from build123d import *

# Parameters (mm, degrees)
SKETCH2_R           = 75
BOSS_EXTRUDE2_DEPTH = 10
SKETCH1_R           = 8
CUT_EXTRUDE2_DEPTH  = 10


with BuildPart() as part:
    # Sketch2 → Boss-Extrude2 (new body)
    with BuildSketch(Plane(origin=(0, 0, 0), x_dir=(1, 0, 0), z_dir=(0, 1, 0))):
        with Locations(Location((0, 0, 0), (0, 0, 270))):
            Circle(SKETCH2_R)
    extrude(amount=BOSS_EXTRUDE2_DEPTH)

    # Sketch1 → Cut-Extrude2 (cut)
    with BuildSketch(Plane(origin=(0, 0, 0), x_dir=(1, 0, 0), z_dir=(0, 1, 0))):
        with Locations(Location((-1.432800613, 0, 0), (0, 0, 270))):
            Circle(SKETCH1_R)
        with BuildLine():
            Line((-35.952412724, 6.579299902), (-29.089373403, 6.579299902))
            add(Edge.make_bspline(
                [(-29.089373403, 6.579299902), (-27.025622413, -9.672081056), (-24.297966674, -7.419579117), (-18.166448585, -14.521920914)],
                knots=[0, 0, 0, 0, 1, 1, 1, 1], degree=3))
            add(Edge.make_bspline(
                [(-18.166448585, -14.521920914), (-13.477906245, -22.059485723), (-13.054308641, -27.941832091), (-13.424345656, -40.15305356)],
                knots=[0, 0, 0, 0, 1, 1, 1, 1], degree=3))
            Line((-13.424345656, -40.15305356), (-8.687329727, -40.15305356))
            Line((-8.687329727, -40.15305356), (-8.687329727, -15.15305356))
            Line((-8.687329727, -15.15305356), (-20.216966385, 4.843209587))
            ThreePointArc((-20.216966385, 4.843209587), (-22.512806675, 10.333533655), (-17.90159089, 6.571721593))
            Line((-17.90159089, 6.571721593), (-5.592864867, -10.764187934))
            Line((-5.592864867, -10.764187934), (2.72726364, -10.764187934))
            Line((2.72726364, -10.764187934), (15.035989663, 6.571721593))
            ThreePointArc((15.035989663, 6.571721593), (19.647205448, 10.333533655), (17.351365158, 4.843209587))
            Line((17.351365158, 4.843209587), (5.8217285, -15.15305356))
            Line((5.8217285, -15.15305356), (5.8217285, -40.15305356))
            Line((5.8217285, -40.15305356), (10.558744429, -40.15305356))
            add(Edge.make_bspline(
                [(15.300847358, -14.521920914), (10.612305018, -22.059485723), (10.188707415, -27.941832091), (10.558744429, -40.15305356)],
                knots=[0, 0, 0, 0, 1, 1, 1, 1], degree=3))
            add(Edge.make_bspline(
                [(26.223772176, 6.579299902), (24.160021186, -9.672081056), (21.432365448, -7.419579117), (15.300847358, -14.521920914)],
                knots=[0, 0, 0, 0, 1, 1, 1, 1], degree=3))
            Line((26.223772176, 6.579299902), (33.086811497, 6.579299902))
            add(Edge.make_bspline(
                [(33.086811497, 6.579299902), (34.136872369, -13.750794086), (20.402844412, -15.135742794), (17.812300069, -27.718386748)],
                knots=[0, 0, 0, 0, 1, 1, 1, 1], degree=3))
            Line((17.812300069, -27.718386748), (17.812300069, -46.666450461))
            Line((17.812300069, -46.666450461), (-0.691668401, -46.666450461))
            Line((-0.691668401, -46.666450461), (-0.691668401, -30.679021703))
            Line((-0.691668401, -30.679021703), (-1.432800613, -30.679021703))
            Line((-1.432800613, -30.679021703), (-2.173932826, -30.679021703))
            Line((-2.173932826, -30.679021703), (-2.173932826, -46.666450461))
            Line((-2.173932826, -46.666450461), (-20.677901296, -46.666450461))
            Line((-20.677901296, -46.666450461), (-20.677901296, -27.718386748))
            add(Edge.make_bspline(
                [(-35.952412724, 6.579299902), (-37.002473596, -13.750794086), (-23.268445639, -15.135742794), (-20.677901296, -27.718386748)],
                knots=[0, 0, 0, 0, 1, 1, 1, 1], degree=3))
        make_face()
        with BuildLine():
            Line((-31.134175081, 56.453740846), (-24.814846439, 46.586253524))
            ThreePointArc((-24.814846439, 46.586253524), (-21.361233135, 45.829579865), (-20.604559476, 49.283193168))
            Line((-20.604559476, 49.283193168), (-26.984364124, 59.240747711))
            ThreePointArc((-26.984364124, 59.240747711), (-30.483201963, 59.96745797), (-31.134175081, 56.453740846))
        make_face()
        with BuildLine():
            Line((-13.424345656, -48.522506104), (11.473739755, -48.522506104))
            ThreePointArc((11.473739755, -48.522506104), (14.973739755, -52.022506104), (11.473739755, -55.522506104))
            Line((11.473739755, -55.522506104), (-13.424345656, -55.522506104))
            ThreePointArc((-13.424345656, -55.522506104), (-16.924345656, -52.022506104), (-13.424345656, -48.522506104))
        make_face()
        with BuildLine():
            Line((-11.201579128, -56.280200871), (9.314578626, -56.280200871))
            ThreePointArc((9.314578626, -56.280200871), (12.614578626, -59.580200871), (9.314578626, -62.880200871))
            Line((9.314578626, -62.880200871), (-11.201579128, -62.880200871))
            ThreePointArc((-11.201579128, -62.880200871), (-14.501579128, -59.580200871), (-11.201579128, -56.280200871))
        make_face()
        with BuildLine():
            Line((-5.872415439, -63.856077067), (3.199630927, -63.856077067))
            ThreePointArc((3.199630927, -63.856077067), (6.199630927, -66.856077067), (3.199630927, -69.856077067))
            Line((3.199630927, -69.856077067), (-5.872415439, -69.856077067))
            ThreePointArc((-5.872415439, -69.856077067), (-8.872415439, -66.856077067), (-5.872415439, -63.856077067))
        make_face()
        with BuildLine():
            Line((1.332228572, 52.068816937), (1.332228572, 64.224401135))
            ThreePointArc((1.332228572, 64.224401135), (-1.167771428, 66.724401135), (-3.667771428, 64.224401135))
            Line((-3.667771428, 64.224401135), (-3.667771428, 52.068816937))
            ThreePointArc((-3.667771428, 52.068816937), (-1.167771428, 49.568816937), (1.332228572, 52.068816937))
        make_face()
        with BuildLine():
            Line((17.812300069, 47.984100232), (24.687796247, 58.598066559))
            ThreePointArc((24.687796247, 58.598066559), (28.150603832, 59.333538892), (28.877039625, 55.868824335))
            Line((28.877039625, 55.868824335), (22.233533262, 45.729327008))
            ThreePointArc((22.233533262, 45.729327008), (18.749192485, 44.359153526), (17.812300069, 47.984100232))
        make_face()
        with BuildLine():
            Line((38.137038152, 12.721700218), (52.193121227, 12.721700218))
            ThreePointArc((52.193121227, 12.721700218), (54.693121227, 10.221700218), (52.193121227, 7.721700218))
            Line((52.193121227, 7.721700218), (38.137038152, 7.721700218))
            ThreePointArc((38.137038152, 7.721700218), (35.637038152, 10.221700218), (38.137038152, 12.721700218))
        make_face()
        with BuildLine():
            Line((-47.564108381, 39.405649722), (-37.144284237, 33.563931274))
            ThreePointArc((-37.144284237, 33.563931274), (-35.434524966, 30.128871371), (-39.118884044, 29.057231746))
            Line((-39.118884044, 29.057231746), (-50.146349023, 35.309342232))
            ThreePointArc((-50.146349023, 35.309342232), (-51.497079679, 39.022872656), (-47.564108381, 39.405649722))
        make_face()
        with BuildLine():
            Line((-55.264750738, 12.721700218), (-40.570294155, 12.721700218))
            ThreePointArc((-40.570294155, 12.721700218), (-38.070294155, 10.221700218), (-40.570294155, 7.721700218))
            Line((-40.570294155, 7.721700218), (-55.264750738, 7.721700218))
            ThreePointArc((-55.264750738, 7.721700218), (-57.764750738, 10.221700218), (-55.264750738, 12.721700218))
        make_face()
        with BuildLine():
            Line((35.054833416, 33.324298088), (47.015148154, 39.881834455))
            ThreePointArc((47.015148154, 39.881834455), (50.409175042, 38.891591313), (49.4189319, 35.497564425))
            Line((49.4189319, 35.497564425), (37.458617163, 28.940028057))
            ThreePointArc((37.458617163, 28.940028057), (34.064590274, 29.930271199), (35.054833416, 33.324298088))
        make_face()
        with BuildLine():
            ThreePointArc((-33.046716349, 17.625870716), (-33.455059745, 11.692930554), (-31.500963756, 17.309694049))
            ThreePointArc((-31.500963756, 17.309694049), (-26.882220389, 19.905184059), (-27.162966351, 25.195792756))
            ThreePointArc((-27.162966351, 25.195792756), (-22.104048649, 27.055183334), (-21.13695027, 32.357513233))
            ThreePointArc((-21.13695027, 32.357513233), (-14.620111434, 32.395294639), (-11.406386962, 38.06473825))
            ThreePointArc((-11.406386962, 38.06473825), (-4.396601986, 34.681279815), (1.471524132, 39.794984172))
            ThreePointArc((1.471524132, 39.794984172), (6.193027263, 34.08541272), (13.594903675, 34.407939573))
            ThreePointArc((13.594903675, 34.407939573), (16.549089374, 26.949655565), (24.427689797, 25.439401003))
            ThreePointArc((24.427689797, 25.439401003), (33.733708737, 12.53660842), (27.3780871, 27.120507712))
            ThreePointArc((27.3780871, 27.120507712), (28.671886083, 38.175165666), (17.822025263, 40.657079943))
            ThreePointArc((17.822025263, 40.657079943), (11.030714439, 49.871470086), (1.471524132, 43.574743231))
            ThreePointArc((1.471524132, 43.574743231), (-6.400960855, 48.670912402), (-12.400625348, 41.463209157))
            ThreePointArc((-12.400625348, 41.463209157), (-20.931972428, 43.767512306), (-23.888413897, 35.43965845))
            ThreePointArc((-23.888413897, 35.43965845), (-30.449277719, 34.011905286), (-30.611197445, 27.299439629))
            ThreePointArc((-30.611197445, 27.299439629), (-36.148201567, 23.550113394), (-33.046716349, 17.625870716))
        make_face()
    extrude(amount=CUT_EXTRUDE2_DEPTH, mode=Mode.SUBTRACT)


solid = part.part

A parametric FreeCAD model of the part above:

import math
import FreeCAD as App
import Part
import Sketcher

V = App.Vector
Q = App.Units.Quantity

doc = App.newDocument("Part")
params = doc.addObject("Spreadsheet::Sheet", "Params")
for row, (alias, value) in enumerate([
    ("sketch1_diameter", "150 mm"),
    ("pad1_length", "10 mm"),
    ("sketch2_diameter", "16 mm"),
    ("sketch2_radius", "3 mm"),
    ("sketch2_radius2", "2.5 mm"),
    ("sketch2_radius3", "3.5 mm"),
    ("sketch2_radius4", "3.3 mm"),
    ("pocket1_length", "10 mm"),
], start=1):
    params.set(f"A{row}", alias)
    params.set(f"B{row}", "=" + value)
    params.setAlias(f"B{row}", alias)

body = doc.addObject("PartDesign::Body", "Body")

sketch1 = body.newObject("Sketcher::SketchObject", "Sketch")
sketch1.AttachmentSupport = (doc.getObject("XZ_Plane"), [""])
sketch1.MapMode = "FlatFace"
sketch1.addGeometry(Part.Circle(V(0, 0, 0), V(0, 0, 1), 75), False)
sketch1.addConstraint(Sketcher.Constraint("Coincident", 0, 3, -1, 1))
sketch1.addConstraint(Sketcher.Constraint("Diameter", 0, Q("150 mm")))
sketch1.setExpression("Constraints[1]", "Params.sketch1_diameter")
pad1 = body.newObject("PartDesign::Pad", "Pad")
pad1.Profile = sketch1
pad1.setExpression("Length", "Params.pad1_length")
pad1.Reversed = True

sketch2 = body.newObject("Sketcher::SketchObject", "Sketch001")
sketch2.AttachmentSupport = (doc.getObject("XZ_Plane"), [""])
sketch2.MapMode = "FlatFace"
sketch2.addGeometry(Part.Circle(V(-1.432801, 0, 0), V(0, 0, 1), 8), False)
sketch2.addGeometry(Part.LineSegment(V(-29.089373, -6.5793, 0), V(-35.952413, -6.5793, 0)), False)
sketch2.addGeometry(Part.BSplineCurve([V(-35.952413, -6.5793, 0), V(-37.002474, 13.750794, 0), V(-23.268446, 15.135743, 0), V(-20.677901, 27.718387, 0)], [4, 4], [0, 1], False, 3, [1, 1, 1, 1], False), False)
sketch2.addGeometry(Part.LineSegment(V(-20.677901, 27.718387, 0), V(-20.677901, 46.66645, 0)), False)
sketch2.addGeometry(Part.LineSegment(V(-20.677901, 46.66645, 0), V(-2.173933, 46.66645, 0)), False)
sketch2.addGeometry(Part.LineSegment(V(-2.173933, 46.66645, 0), V(-2.173933, 30.679022, 0)), False)
sketch2.addGeometry(Part.LineSegment(V(-2.173933, 30.679022, 0), V(-0.691668, 30.679022, 0)), False)
sketch2.addGeometry(Part.LineSegment(V(-0.691668, 30.679022, 0), V(-0.691668, 46.66645, 0)), False)
sketch2.addGeometry(Part.LineSegment(V(-0.691668, 46.66645, 0), V(17.8123, 46.66645, 0)), False)
sketch2.addGeometry(Part.LineSegment(V(17.8123, 46.66645, 0), V(17.8123, 27.718387, 0)), False)
sketch2.addGeometry(Part.BSplineCurve([V(33.086811, -6.5793, 0), V(34.136872, 13.750794, 0), V(20.402844, 15.135743, 0), V(17.8123, 27.718387, 0)], [4, 4], [0, 1], False, 3, [1, 1, 1, 1], False), False)
sketch2.addGeometry(Part.LineSegment(V(33.086811, -6.5793, 0), V(26.223772, -6.5793, 0)), False)
sketch2.addGeometry(Part.BSplineCurve([V(26.223772, -6.5793, 0), V(24.160021, 9.672081, 0), V(21.432365, 7.419579, 0), V(15.300847, 14.521921, 0)], [4, 4], [0, 1], False, 3, [1, 1, 1, 1], False), False)
sketch2.addGeometry(Part.BSplineCurve([V(15.300847, 14.521921, 0), V(10.612305, 22.059486, 0), V(10.188707, 27.941832, 0), V(10.558744, 40.153054, 0)], [4, 4], [0, 1], False, 3, [1, 1, 1, 1], False), False)
sketch2.addGeometry(Part.LineSegment(V(10.558744, 40.153054, 0), V(5.821728, 40.153054, 0)), False)
sketch2.addGeometry(Part.LineSegment(V(5.821728, 40.153054, 0), V(5.821728, 15.153054, 0)), False)
sketch2.addGeometry(Part.LineSegment(V(5.821728, 15.153054, 0), V(17.351365, -4.84321, 0)), False)
sketch2.addGeometry(Part.ArcOfCircle(Part.Circle(V(17.8123, -7.875642, 0), V(0, 0, 1), 3.067264), math.radians(154.842457), math.radians(458.642898)), False)
sketch2.addGeometry(Part.LineSegment(V(15.03599, -6.571722, 0), V(2.727264, 10.764188, 0)), False)
sketch2.addGeometry(Part.LineSegment(V(2.727264, 10.764188, 0), V(-5.592865, 10.764188, 0)), False)
sketch2.addGeometry(Part.LineSegment(V(-5.592865, 10.764188, 0), V(-17.901591, -6.571722, 0)), False)
sketch2.addGeometry(Part.ArcOfCircle(Part.Circle(V(-20.677901, -7.875642, 0), V(0, 0, 1), 3.067264), math.radians(81.357102), math.radians(385.157543)), False)
sketch2.addGeometry(Part.LineSegment(V(-20.216966, -4.84321, 0), V(-8.68733, 15.153054, 0)), False)
sketch2.addGeometry(Part.LineSegment(V(-8.68733, 15.153054, 0), V(-8.68733, 40.153054, 0)), False)
sketch2.addGeometry(Part.LineSegment(V(-8.68733, 40.153054, 0), V(-13.424346, 40.153054, 0)), False)
sketch2.addGeometry(Part.BSplineCurve([V(-18.166449, 14.521921, 0), V(-13.477906, 22.059486, 0), V(-13.054309, 27.941832, 0), V(-13.424346, 40.153054, 0)], [4, 4], [0, 1], False, 3, [1, 1, 1, 1], False), False)
sketch2.addGeometry(Part.BSplineCurve([V(-29.089373, -6.5793, 0), V(-27.025622, 9.672081, 0), V(-24.297967, 7.419579, 0), V(-18.166449, 14.521921, 0)], [4, 4], [0, 1], False, 3, [1, 1, 1, 1], False), False)
sketch2.addGeometry(Part.LineSegment(V(-31.134175, -56.453741, 0), V(-24.814846, -46.586254, 0)), False)
sketch2.addGeometry(Part.ArcOfCircle(Part.Circle(V(-22.709703, -47.934723, 0), V(0, 0, 1), 2.5), math.radians(-32.641982), math.radians(147.358018)), False)
sketch2.addGeometry(Part.LineSegment(V(-20.604559, -49.283193, 0), V(-26.984364, -59.240748, 0)), False)
sketch2.addGeometry(Part.ArcOfCircle(Part.Circle(V(-29.089373, -57.892068, 0), V(0, 0, 1), 2.5), math.radians(144.877183), math.radians(327.352315)), False)
sketch2.addGeometry(Part.LineSegment(V(11.47374, 48.522506, 0), V(-13.424346, 48.522506, 0)), False)
sketch2.addGeometry(Part.ArcOfCircle(Part.Circle(V(-13.424346, 52.022506, 0), V(0, 0, 1), 3.5), math.radians(90), math.radians(270)), False)
sketch2.addGeometry(Part.LineSegment(V(-13.424346, 55.522506, 0), V(11.47374, 55.522506, 0)), False)
sketch2.addGeometry(Part.ArcOfCircle(Part.Circle(V(11.47374, 52.022506, 0), V(0, 0, 1), 3.5), math.radians(-90), math.radians(90)), False)
sketch2.addGeometry(Part.LineSegment(V(9.314579, 56.280201, 0), V(-11.201579, 56.280201, 0)), False)
sketch2.addGeometry(Part.ArcOfCircle(Part.Circle(V(-11.201579, 59.580201, 0), V(0, 0, 1), 3.3), math.radians(90), math.radians(270)), False)
sketch2.addGeometry(Part.LineSegment(V(-11.201579, 62.880201, 0), V(9.314579, 62.880201, 0)), False)
sketch2.addGeometry(Part.ArcOfCircle(Part.Circle(V(9.314579, 59.580201, 0), V(0, 0, 1), 3.3), math.radians(-90), math.radians(90)), False)
sketch2.addGeometry(Part.LineSegment(V(3.199631, 63.856077, 0), V(-5.872415, 63.856077, 0)), False)
sketch2.addGeometry(Part.ArcOfCircle(Part.Circle(V(-5.872415, 66.856077, 0), V(0, 0, 1), 3), math.radians(90), math.radians(270)), False)
sketch2.addGeometry(Part.LineSegment(V(-5.872415, 69.856077, 0), V(3.199631, 69.856077, 0)), False)
sketch2.addGeometry(Part.ArcOfCircle(Part.Circle(V(3.199631, 66.856077, 0), V(0, 0, 1), 3), math.radians(-90), math.radians(90)), False)
sketch2.addGeometry(Part.LineSegment(V(1.332229, -52.068817, 0), V(1.332229, -64.224401, 0)), False)
sketch2.addGeometry(Part.ArcOfCircle(Part.Circle(V(-1.167771, -64.224401, 0), V(0, 0, 1), 2.5), math.radians(180), math.radians(360)), False)
sketch2.addGeometry(Part.LineSegment(V(-3.667771, -64.224401, 0), V(-3.667771, -52.068817, 0)), False)
sketch2.addGeometry(Part.ArcOfCircle(Part.Circle(V(-1.167771, -52.068817, 0), V(0, 0, 1), 2.5), math.radians(0), math.radians(180)), False)
sketch2.addGeometry(Part.LineSegment(V(24.687796, -58.598067, 0), V(17.8123, -47.9841, 0)), False)
sketch2.addGeometry(Part.ArcOfCircle(Part.Circle(V(19.884985, -46.586254, 0), V(0, 0, 1), 2.5), math.radians(20.045765), math.radians(213.996253)), False)
sketch2.addGeometry(Part.LineSegment(V(22.233533, -45.729327, 0), V(28.87704, -55.868824, 0)), False)
sketch2.addGeometry(Part.ArcOfCircle(Part.Circle(V(26.785978, -57.23891, 0), V(0, 0, 1), 2.499935), math.radians(-147.065713), math.radians(33.233243)), False)
sketch2.addGeometry(Part.LineSegment(V(52.193121, -12.7217, 0), V(38.137038, -12.7217, 0)), False)
sketch2.addGeometry(Part.ArcOfCircle(Part.Circle(V(38.137038, -10.2217, 0), V(0, 0, 1), 2.5), math.radians(90), math.radians(270)), False)
sketch2.addGeometry(Part.LineSegment(V(38.137038, -7.7217, 0), V(52.193121, -7.7217, 0)), False)
sketch2.addGeometry(Part.ArcOfCircle(Part.Circle(V(52.193121, -10.2217, 0), V(0, 0, 1), 2.5), math.radians(-90), math.radians(90)), False)
sketch2.addGeometry(Part.LineSegment(V(-37.144284, -33.563931, 0), V(-47.564108, -39.40565, 0)), False)
sketch2.addGeometry(Part.ArcOfCircle(Part.Circle(V(-49.382216, -37.689699, 0), V(0, 0, 1), 2.5), math.radians(107.797471), math.radians(316.655758)), False)
sketch2.addGeometry(Part.LineSegment(V(-50.146349, -35.309342, 0), V(-39.118884, -29.057232, 0)), False)
sketch2.addGeometry(Part.ArcOfCircle(Part.Circle(V(-37.724373, -31.132163, 0), V(0, 0, 1), 2.5), math.radians(-76.583051), math.radians(123.904084)), False)
sketch2.addGeometry(Part.LineSegment(V(-40.570294, -12.7217, 0), V(-55.264751, -12.7217, 0)), False)
sketch2.addGeometry(Part.ArcOfCircle(Part.Circle(V(-55.264751, -10.2217, 0), V(0, 0, 1), 2.5), math.radians(90), math.radians(270)), False)
sketch2.addGeometry(Part.LineSegment(V(-55.264751, -7.7217, 0), V(-40.570294, -7.7217, 0)), False)
sketch2.addGeometry(Part.ArcOfCircle(Part.Circle(V(-40.570294, -10.2217, 0), V(0, 0, 1), 2.5), math.radians(-90), math.radians(90)), False)
sketch2.addGeometry(Part.LineSegment(V(47.015148, -39.881834, 0), V(35.054833, -33.324298, 0)), False)
sketch2.addGeometry(Part.ArcOfCircle(Part.Circle(V(36.256725, -31.132163, 0), V(0, 0, 1), 2.5), math.radians(61.265162), math.radians(241.265162)), False)
sketch2.addGeometry(Part.LineSegment(V(37.458617, -28.940028, 0), V(49.418932, -35.497564, 0)), False)
sketch2.addGeometry(Part.ArcOfCircle(Part.Circle(V(48.21704, -37.689699, 0), V(0, 0, 1), 2.5), math.radians(-118.734838), math.radians(61.265162)), False)
sketch2.addGeometry(Part.ArcOfCircle(Part.Circle(V(-32.853871, -14.632075, 0), V(0, 0, 1), 3), math.radians(-63.194123), math.radians(266.314385)), False)
sketch2.addGeometry(Part.ArcOfCircle(Part.Circle(V(-31.280411, -22.324547, 0), V(0, 0, 1), 5.019701), math.radians(-34.88948), math.radians(92.518242)), False)
sketch2.addGeometry(Part.ArcOfCircle(Part.Circle(V(-26.26071, -30.552682, 0), V(0, 0, 1), 5.432341), math.radians(-19.404684), math.radians(99.560551)), False)
sketch2.addGeometry(Part.ArcOfCircle(Part.Circle(V(-17.911171, -38.006404, 0), V(0, 0, 1), 6.505045), math.radians(-0.513812), math.radians(119.728379)), False)
sketch2.addGeometry(Part.ArcOfCircle(Part.Circle(V(-5.337587, -41.684864, 0), V(0, 0, 1), 7.066515), math.radians(15.512078), math.radians(149.183322)), False)
sketch2.addGeometry(Part.ArcOfCircle(Part.Circle(V(9.569856, -41.684864, 0), V(0, 0, 1), 8.315926), math.radians(61.05193), math.radians(166.864175)), False)
sketch2.addGeometry(Part.ArcOfCircle(Part.Circle(V(21.863657, -33.368937, 0), V(0, 0, 1), 8.333775), math.radians(72.081275), math.radians(187.16191)), False)
sketch2.addGeometry(Part.ArcOfCircle(Part.Circle(V(29.773186, -19.487455, 0), V(0, 0, 1), 8), math.radians(-107.420814), math.radians(228.072703)), False)
sketch2.addGeometry(Part.ArcOfCircle(Part.Circle(V(21.863657, -33.368937, 0), V(0, 0, 1), 8.333775), math.radians(-119.010514), math.radians(48.570614)), False)
sketch2.addGeometry(Part.ArcOfCircle(Part.Circle(V(9.569856, -41.684864, 0), V(0, 0, 1), 8.315926), math.radians(-166.864175), math.radians(7.099465)), False)
sketch2.addGeometry(Part.ArcOfCircle(Part.Circle(V(-5.337587, -41.684864, 0), V(0, 0, 1), 7.066515), math.radians(178.202515), math.radians(344.487922)), False)
sketch2.addGeometry(Part.ArcOfCircle(Part.Circle(V(-17.911171, -38.006404, 0), V(0, 0, 1), 6.505045), math.radians(156.760368), math.radians(327.89965)), False)
sketch2.addGeometry(Part.ArcOfCircle(Part.Circle(V(-26.26071, -30.552682, 0), V(0, 0, 1), 5.432341), math.radians(143.211303), math.radians(295.89343)), False)
sketch2.addGeometry(Part.ArcOfCircle(Part.Circle(V(-31.280411, -22.324547, 0), V(0, 0, 1), 5.019701), math.radians(110.60202), math.radians(277.661333)), False)
sketch2.addConstraint(Sketcher.Constraint("Block", 2))
sketch2.addConstraint(Sketcher.Constraint("Block", 10))
sketch2.addConstraint(Sketcher.Constraint("Block", 12))
sketch2.addConstraint(Sketcher.Constraint("Block", 13))
sketch2.addConstraint(Sketcher.Constraint("Block", 25))
sketch2.addConstraint(Sketcher.Constraint("Block", 26))
sketch2.addConstraint(Sketcher.Constraint("Coincident", 1, 2, 2, 1))
sketch2.addConstraint(Sketcher.Constraint("Coincident", 2, 2, 3, 1))
sketch2.addConstraint(Sketcher.Constraint("Coincident", 3, 2, 4, 1))
sketch2.addConstraint(Sketcher.Constraint("Coincident", 4, 2, 5, 1))
sketch2.addConstraint(Sketcher.Constraint("Coincident", 5, 2, 6, 1))
sketch2.addConstraint(Sketcher.Constraint("Coincident", 6, 2, 7, 1))
sketch2.addConstraint(Sketcher.Constraint("Coincident", 7, 2, 8, 1))
sketch2.addConstraint(Sketcher.Constraint("Coincident", 8, 2, 9, 1))
sketch2.addConstraint(Sketcher.Constraint("Coincident", 9, 2, 10, 2))
sketch2.addConstraint(Sketcher.Constraint("Coincident", 10, 1, 11, 1))
sketch2.addConstraint(Sketcher.Constraint("Coincident", 11, 2, 12, 1))
sketch2.addConstraint(Sketcher.Constraint("Coincident", 13, 2, 14, 1))
sketch2.addConstraint(Sketcher.Constraint("Coincident", 14, 2, 15, 1))
sketch2.addConstraint(Sketcher.Constraint("Coincident", 15, 2, 16, 1))
sketch2.addConstraint(Sketcher.Constraint("Coincident", 16, 2, 17, 2))
sketch2.addConstraint(Sketcher.Constraint("Coincident", 17, 1, 18, 1))
sketch2.addConstraint(Sketcher.Constraint("Coincident", 18, 2, 19, 1))
sketch2.addConstraint(Sketcher.Constraint("Coincident", 19, 2, 20, 1))
sketch2.addConstraint(Sketcher.Constraint("Coincident", 20, 2, 21, 2))
sketch2.addConstraint(Sketcher.Constraint("Coincident", 21, 1, 22, 1))
sketch2.addConstraint(Sketcher.Constraint("Coincident", 22, 2, 23, 1))
sketch2.addConstraint(Sketcher.Constraint("Coincident", 23, 2, 24, 1))
sketch2.addConstraint(Sketcher.Constraint("Coincident", 24, 2, 25, 2))
sketch2.addConstraint(Sketcher.Constraint("Coincident", 26, 1, 1, 1))
sketch2.addConstraint(Sketcher.Constraint("Coincident", 27, 2, 28, 2))
sketch2.addConstraint(Sketcher.Constraint("Coincident", 28, 1, 29, 1))
sketch2.addConstraint(Sketcher.Constraint("Tangent", 29, 2, 30, 2))
sketch2.addConstraint(Sketcher.Constraint("Coincident", 30, 1, 27, 1))
sketch2.addConstraint(Sketcher.Constraint("Tangent", 31, 2, 32, 2))
sketch2.addConstraint(Sketcher.Constraint("Tangent", 32, 1, 33, 1))
sketch2.addConstraint(Sketcher.Constraint("Tangent", 33, 2, 34, 2))
sketch2.addConstraint(Sketcher.Constraint("Tangent", 34, 1, 31, 1))
sketch2.addConstraint(Sketcher.Constraint("Tangent", 35, 2, 36, 2))
sketch2.addConstraint(Sketcher.Constraint("Tangent", 36, 1, 37, 1))
sketch2.addConstraint(Sketcher.Constraint("Tangent", 37, 2, 38, 2))
sketch2.addConstraint(Sketcher.Constraint("Tangent", 38, 1, 35, 1))
sketch2.addConstraint(Sketcher.Constraint("Tangent", 39, 2, 40, 2))
sketch2.addConstraint(Sketcher.Constraint("Tangent", 40, 1, 41, 1))
sketch2.addConstraint(Sketcher.Constraint("Tangent", 41, 2, 42, 2))
sketch2.addConstraint(Sketcher.Constraint("Tangent", 42, 1, 39, 1))
sketch2.addConstraint(Sketcher.Constraint("Tangent", 43, 2, 44, 2))
sketch2.addConstraint(Sketcher.Constraint("Tangent", 44, 1, 45, 1))
sketch2.addConstraint(Sketcher.Constraint("Tangent", 45, 2, 46, 2))
sketch2.addConstraint(Sketcher.Constraint("Tangent", 46, 1, 43, 1))
sketch2.addConstraint(Sketcher.Constraint("Coincident", 47, 2, 48, 2))
sketch2.addConstraint(Sketcher.Constraint("Coincident", 48, 1, 49, 1))
sketch2.addConstraint(Sketcher.Constraint("Tangent", 49, 2, 50, 2))
sketch2.addConstraint(Sketcher.Constraint("Tangent", 50, 1, 47, 1))
sketch2.addConstraint(Sketcher.Constraint("Tangent", 51, 2, 52, 2))
sketch2.addConstraint(Sketcher.Constraint("Tangent", 52, 1, 53, 1))
sketch2.addConstraint(Sketcher.Constraint("Tangent", 53, 2, 54, 2))
sketch2.addConstraint(Sketcher.Constraint("Tangent", 54, 1, 51, 1))
sketch2.addConstraint(Sketcher.Constraint("Coincident", 55, 2, 56, 2))
sketch2.addConstraint(Sketcher.Constraint("Coincident", 56, 1, 57, 1))
sketch2.addConstraint(Sketcher.Constraint("Coincident", 57, 2, 58, 2))
sketch2.addConstraint(Sketcher.Constraint("Coincident", 58, 1, 55, 1))
sketch2.addConstraint(Sketcher.Constraint("Tangent", 59, 2, 60, 2))
sketch2.addConstraint(Sketcher.Constraint("Tangent", 60, 1, 61, 1))
sketch2.addConstraint(Sketcher.Constraint("Tangent", 61, 2, 62, 2))
sketch2.addConstraint(Sketcher.Constraint("Tangent", 62, 1, 59, 1))
sketch2.addConstraint(Sketcher.Constraint("Tangent", 63, 2, 64, 2))
sketch2.addConstraint(Sketcher.Constraint("Tangent", 64, 1, 65, 1))
sketch2.addConstraint(Sketcher.Constraint("Tangent", 65, 2, 66, 2))
sketch2.addConstraint(Sketcher.Constraint("Tangent", 66, 1, 63, 1))
sketch2.addConstraint(Sketcher.Constraint("Coincident", 67, 1, 68, 2))
sketch2.addConstraint(Sketcher.Constraint("Coincident", 68, 1, 69, 2))
sketch2.addConstraint(Sketcher.Constraint("Coincident", 69, 1, 70, 2))
sketch2.addConstraint(Sketcher.Constraint("Coincident", 70, 1, 71, 2))
sketch2.addConstraint(Sketcher.Constraint("Coincident", 71, 1, 72, 2))
sketch2.addConstraint(Sketcher.Constraint("Coincident", 72, 1, 73, 2))
sketch2.addConstraint(Sketcher.Constraint("Coincident", 73, 1, 74, 2))
sketch2.addConstraint(Sketcher.Constraint("Coincident", 74, 1, 75, 2))
sketch2.addConstraint(Sketcher.Constraint("Coincident", 75, 1, 76, 2))
sketch2.addConstraint(Sketcher.Constraint("Coincident", 76, 1, 77, 2))
sketch2.addConstraint(Sketcher.Constraint("Coincident", 77, 1, 78, 2))
sketch2.addConstraint(Sketcher.Constraint("Coincident", 78, 1, 79, 2))
sketch2.addConstraint(Sketcher.Constraint("Coincident", 79, 1, 80, 2))
sketch2.addConstraint(Sketcher.Constraint("Coincident", 80, 1, 67, 2))
sketch2.addConstraint(Sketcher.Constraint("Vertical", 3))
sketch2.addConstraint(Sketcher.Constraint("Horizontal", 4))
sketch2.addConstraint(Sketcher.Constraint("Vertical", 5))
sketch2.addConstraint(Sketcher.Constraint("Horizontal", 6))
sketch2.addConstraint(Sketcher.Constraint("Vertical", 7))
sketch2.addConstraint(Sketcher.Constraint("Horizontal", 8))
sketch2.addConstraint(Sketcher.Constraint("Vertical", 9))
sketch2.addConstraint(Sketcher.Constraint("Horizontal", 14))
sketch2.addConstraint(Sketcher.Constraint("Vertical", 15))
sketch2.addConstraint(Sketcher.Constraint("Horizontal", 19))
sketch2.addConstraint(Sketcher.Constraint("Vertical", 23))
sketch2.addConstraint(Sketcher.Constraint("Horizontal", 24))
sketch2.addConstraint(Sketcher.Constraint("Horizontal", 31))
sketch2.addConstraint(Sketcher.Constraint("Horizontal", 33))
sketch2.addConstraint(Sketcher.Constraint("Horizontal", 35))
sketch2.addConstraint(Sketcher.Constraint("Horizontal", 37))
sketch2.addConstraint(Sketcher.Constraint("Horizontal", 39))
sketch2.addConstraint(Sketcher.Constraint("Horizontal", 41))
sketch2.addConstraint(Sketcher.Constraint("Vertical", 43))
sketch2.addConstraint(Sketcher.Constraint("Vertical", 45))
sketch2.addConstraint(Sketcher.Constraint("Horizontal", 51))
sketch2.addConstraint(Sketcher.Constraint("Horizontal", 53))
sketch2.addConstraint(Sketcher.Constraint("Horizontal", 59))
sketch2.addConstraint(Sketcher.Constraint("Horizontal", 61))
sketch2.addConstraint(Sketcher.Constraint("Coincident", 75, 3, 73, 3))
sketch2.addConstraint(Sketcher.Constraint("Coincident", 76, 3, 72, 3))
sketch2.addConstraint(Sketcher.Constraint("Coincident", 77, 3, 71, 3))
sketch2.addConstraint(Sketcher.Constraint("Coincident", 78, 3, 70, 3))
sketch2.addConstraint(Sketcher.Constraint("Coincident", 79, 3, 69, 3))
sketch2.addConstraint(Sketcher.Constraint("Coincident", 80, 3, 68, 3))
sketch2.addConstraint(Sketcher.Constraint("Equal", 17, 21))
sketch2.addConstraint(Sketcher.Constraint("Equal", 28, 30))
sketch2.addConstraint(Sketcher.Constraint("Equal", 30, 44))
sketch2.addConstraint(Sketcher.Constraint("Equal", 46, 48))
sketch2.addConstraint(Sketcher.Constraint("Equal", 48, 52))
sketch2.addConstraint(Sketcher.Constraint("Equal", 54, 56))
sketch2.addConstraint(Sketcher.Constraint("Equal", 56, 58))
sketch2.addConstraint(Sketcher.Constraint("Equal", 58, 60))
sketch2.addConstraint(Sketcher.Constraint("Equal", 62, 64))
sketch2.addConstraint(Sketcher.Constraint("Equal", 64, 66))
sketch2.addConstraint(Sketcher.Constraint("Equal", 42, 67))
sketch2.addConstraint(Sketcher.Constraint("Equal", 0, 74))
sketch2.addConstraint(Sketcher.Constraint("Equal", 73, 75))
sketch2.addConstraint(Sketcher.Constraint("Equal", 72, 76))
sketch2.addConstraint(Sketcher.Constraint("Equal", 71, 77))
sketch2.addConstraint(Sketcher.Constraint("Equal", 70, 78))
sketch2.addConstraint(Sketcher.Constraint("Equal", 69, 79))
sketch2.addConstraint(Sketcher.Constraint("Equal", 68, 80))
sketch2.addConstraint(Sketcher.Constraint("PointOnObject", 0, 3, -1))
sketch2.addConstraint(Sketcher.Constraint("Horizontal", 17, 3, 21, 3))
sketch2.addConstraint(Sketcher.Constraint("Horizontal", 54, 3, 60, 3))
sketch2.addConstraint(Sketcher.Constraint("Horizontal", 58, 3, 64, 3))
sketch2.addConstraint(Sketcher.Constraint("Horizontal", 56, 3, 66, 3))
sketch2.addConstraint(Sketcher.Constraint("Horizontal", 71, 3, 72, 3))
sketch2.addConstraint(Sketcher.Constraint("Horizontal", 4, 2, 7, 2))
sketch2.addConstraint(Sketcher.Constraint("Horizontal", 17, 1, 20, 2))
sketch2.addConstraint(Sketcher.Constraint("Horizontal", 16, 2, 21, 1))
sketch2.addConstraint(Sketcher.Constraint("Horizontal", 15, 2, 22, 2))
sketch2.addConstraint(Sketcher.Constraint("Horizontal", 48, 3, 27, 2))
sketch2.addConstraint(Sketcher.Constraint("Vertical", 21, 3, 3, 2))
sketch2.addConstraint(Sketcher.Constraint("Vertical", 17, 3, 8, 2))
sketch2.addConstraint(Sketcher.Constraint("Vertical", 32, 3, 24, 2))
sketch2.addConstraint(Sketcher.Constraint("Vertical", 9, 2, 47, 2))
sketch2.addConstraint(Sketcher.Constraint("Equal", 4, 8))
sketch2.addConstraint(Sketcher.Constraint("Equal", 14, 24))
sketch2.addConstraint(Sketcher.Constraint("Equal", 18, 20))
sketch2.addConstraint(Sketcher.Constraint("Diameter", 0, Q("16 mm")))
sketch2.addConstraint(Sketcher.Constraint("Radius", 40, Q("3 mm")))
sketch2.addConstraint(Sketcher.Constraint("Radius", 28, Q("2.5 mm")))
sketch2.addConstraint(Sketcher.Constraint("Radius", 32, Q("3.5 mm")))
sketch2.addConstraint(Sketcher.Constraint("Radius", 36, Q("3.3 mm")))
sketch2.addConstraint(Sketcher.Constraint("DistanceY", 15, 2, 15, 1, Q("25 mm")))
sketch2.addConstraint(Sketcher.Constraint("Radius", 68, Q("5.019701 mm")))
sketch2.addConstraint(Sketcher.Constraint("Radius", 69, Q("5.432341 mm")))
sketch2.addConstraint(Sketcher.Constraint("Radius", 17, Q("3.067264 mm")))
sketch2.addConstraint(Sketcher.Constraint("Radius", 50, Q("2.499935 mm")))
sketch2.addConstraint(Sketcher.Constraint("Radius", 70, Q("6.505045 mm")))
sketch2.addConstraint(Sketcher.Constraint("Radius", 71, Q("7.066515 mm")))
sketch2.addConstraint(Sketcher.Constraint("Radius", 72, Q("8.315926 mm")))
sketch2.addConstraint(Sketcher.Constraint("Radius", 73, Q("8.333775 mm")))
sketch2.addConstraint(Sketcher.Constraint("DistanceX", 4, 1, 4, 2, Q("18.503968 mm")))
sketch2.addConstraint(Sketcher.Constraint("DistanceX", 19, 2, 19, 1, Q("8.320129 mm")))
sketch2.addConstraint(Sketcher.Constraint("DistanceY", 5, 2, 5, 1, Q("15.987429 mm")))
sketch2.addConstraint(Sketcher.Constraint("DistanceX", 0, 3, -1, 1, Q("1.432801 mm")))
sketch2.addConstraint(Sketcher.Constraint("DistanceY", -1, 1, 36, 3, Q("59.580201 mm")))
sketch2.addConstraint(Sketcher.Constraint("DistanceY", 44, 3, -1, 1, Q("64.224401 mm")))
sketch2.addConstraint(Sketcher.Constraint("DistanceY", 52, 3, -1, 1, Q("10.2217 mm")))
sketch2.addConstraint(Sketcher.Constraint("DistanceY", 56, 3, -1, 1, Q("37.689699 mm")))
sketch2.addConstraint(Sketcher.Constraint("DistanceY", 47, 2, -1, 1, Q("47.9841 mm")))
sketch2.addConstraint(Sketcher.Constraint("DistanceY", 63, 2, -1, 1, Q("33.324298 mm")))
sketch2.addConstraint(Sketcher.Constraint("DistanceY", 73, 1, -1, 1, Q("25.439401 mm")))
sketch2.addConstraint(Sketcher.Constraint("Distance", 27, Q("11.71756 mm")))
sketch2.addConstraint(Sketcher.Constraint("Distance", 49, Q("12.122111 mm")))
sketch2.addConstraint(Sketcher.Constraint("Distance", 57, Q("12.676509 mm")))
sketch2.addConstraint(Sketcher.Constraint("Distance", 63, Q("13.64003 mm")))
sketch2.addConstraint(Sketcher.Constraint("DistanceX", 14, 2, 14, 1, Q("4.737016 mm")))
sketch2.addConstraint(Sketcher.Constraint("DistanceX", 31, 2, 31, 1, Q("24.898085 mm")))
sketch2.addConstraint(Sketcher.Constraint("DistanceX", 35, 2, 35, 1, Q("20.516158 mm")))
sketch2.addConstraint(Sketcher.Constraint("DistanceX", 39, 2, 39, 1, Q("9.072046 mm")))
sketch2.addConstraint(Sketcher.Constraint("DistanceX", 51, 2, 51, 1, Q("14.056083 mm")))
sketch2.addConstraint(Sketcher.Constraint("DistanceX", 59, 2, 59, 1, Q("14.694457 mm")))
sketch2.addConstraint(Sketcher.Constraint("DistanceY", 3, 1, 3, 2, Q("18.948064 mm")))
sketch2.addConstraint(Sketcher.Constraint("DistanceY", 43, 2, 43, 1, Q("12.155584 mm")))
sketch2.addConstraint(Sketcher.Constraint("DistanceY", 30, 3, -1, 1, Q("57.892068 mm")))
sketch2.addConstraint(Sketcher.Constraint("DistanceX", 36, 3, -1, 1, Q("11.201579 mm")))
sketch2.addConstraint(Sketcher.Constraint("DistanceX", -1, 1, 42, 3, Q("3.199631 mm")))
sketch2.addConstraint(Sketcher.Constraint("DistanceX", 44, 3, -1, 1, Q("1.167771 mm")))
sketch2.addConstraint(Sketcher.Constraint("DistanceX", -1, 1, 50, 3, Q("26.785978 mm")))
sketch2.addConstraint(Sketcher.Constraint("DistanceY", 50, 3, -1, 1, Q("57.23891 mm")))
sketch2.addConstraint(Sketcher.Constraint("DistanceX", -1, 1, 52, 3, Q("38.137038 mm")))
sketch2.addConstraint(Sketcher.Constraint("DistanceX", 60, 3, -1, 1, Q("55.264751 mm")))
sketch2.addConstraint(Sketcher.Constraint("DistanceX", -1, 1, 66, 3, Q("48.21704 mm")))
sketch2.addConstraint(Sketcher.Constraint("DistanceX", 67, 3, -1, 1, Q("32.853871 mm")))
sketch2.addConstraint(Sketcher.Constraint("DistanceX", 68, 3, -1, 1, Q("31.280411 mm")))
sketch2.addConstraint(Sketcher.Constraint("DistanceX", 69, 3, -1, 1, Q("26.26071 mm")))
sketch2.addConstraint(Sketcher.Constraint("DistanceY", 69, 3, -1, 1, Q("30.552682 mm")))
sketch2.addConstraint(Sketcher.Constraint("DistanceX", 70, 3, -1, 1, Q("17.911171 mm")))
sketch2.addConstraint(Sketcher.Constraint("DistanceY", 16, 2, -1, 1, Q("4.84321 mm")))
sketch2.addConstraint(Sketcher.Constraint("DistanceX", -1, 1, 17, 1, Q("15.03599 mm")))
sketch2.addConstraint(Sketcher.Constraint("DistanceY", 17, 1, -1, 1, Q("6.571722 mm")))
sketch2.addConstraint(Sketcher.Constraint("DistanceX", 28, 1, -1, 1, Q("20.604559 mm")))
sketch2.addConstraint(Sketcher.Constraint("DistanceY", 30, 1, -1, 1, Q("56.453741 mm")))
sketch2.addConstraint(Sketcher.Constraint("DistanceX", -1, 1, 49, 2, Q("28.87704 mm")))
sketch2.addConstraint(Sketcher.Constraint("DistanceX", 55, 2, -1, 1, Q("47.564108 mm")))
sketch2.addConstraint(Sketcher.Constraint("DistanceY", 55, 2, -1, 1, Q("39.40565 mm")))
sketch2.addConstraint(Sketcher.Constraint("DistanceX", 56, 1, -1, 1, Q("50.146349 mm")))
sketch2.addConstraint(Sketcher.Constraint("DistanceY", 57, 2, -1, 1, Q("29.057232 mm")))
sketch2.addConstraint(Sketcher.Constraint("DistanceY", 58, 1, -1, 1, Q("33.563931 mm")))
sketch2.addConstraint(Sketcher.Constraint("DistanceX", 69, 1, -1, 1, Q("21.13695 mm")))
sketch2.addConstraint(Sketcher.Constraint("DistanceY", 70, 1, -1, 1, Q("38.064738 mm")))
sketch2.addConstraint(Sketcher.Constraint("DistanceY", 72, 1, -1, 1, Q("34.40794 mm")))
sketch2.addConstraint(Sketcher.Constraint("DistanceX", -1, 1, 73, 1, Q("24.42769 mm")))
sketch2.addConstraint(Sketcher.Constraint("DistanceY", 75, 1, -1, 1, Q("40.65708 mm")))
sketch2.addConstraint(Sketcher.Constraint("DistanceY", 77, 1, -1, 1, Q("41.463209 mm")))
sketch2.addConstraint(Sketcher.Constraint("DistanceY", 79, 1, -1, 1, Q("27.29944 mm")))
sketch2.addConstraint(Sketcher.Constraint("DistanceY", 80, 1, -1, 1, Q("17.625871 mm")))
sketch2.addConstraint(Sketcher.Constraint("Distance", 18, Q("21.261197 mm")))
sketch2.addConstraint(Sketcher.Constraint("Distance", 29, Q("11.826022 mm")))
sketch2.addConstraint(Sketcher.Constraint("DistanceX", 28, 3, -1, 1, Q("22.709703 mm")))
sketch2.addConstraint(Sketcher.Constraint("DistanceY", -1, 1, 32, 3, Q("52.022506 mm")))
sketch2.addConstraint(Sketcher.Constraint("DistanceY", -1, 1, 40, 3, Q("66.856077 mm")))
sketch2.addConstraint(Sketcher.Constraint("DistanceX", -1, 1, 74, 3, Q("29.773186 mm")))
sketch2.setExpression("Constraints[150]", "Params.sketch2_diameter")
sketch2.setExpression("Constraints[151]", "Params.sketch2_radius")
sketch2.setExpression("Constraints[152]", "Params.sketch2_radius2")
sketch2.setExpression("Constraints[153]", "Params.sketch2_radius3")
sketch2.setExpression("Constraints[154]", "Params.sketch2_radius4")
pocket1 = body.newObject("PartDesign::Pocket", "Pocket")
pocket1.Profile = sketch2
pocket1.setExpression("Length", "Params.pocket1_length")

doc.recompute()
